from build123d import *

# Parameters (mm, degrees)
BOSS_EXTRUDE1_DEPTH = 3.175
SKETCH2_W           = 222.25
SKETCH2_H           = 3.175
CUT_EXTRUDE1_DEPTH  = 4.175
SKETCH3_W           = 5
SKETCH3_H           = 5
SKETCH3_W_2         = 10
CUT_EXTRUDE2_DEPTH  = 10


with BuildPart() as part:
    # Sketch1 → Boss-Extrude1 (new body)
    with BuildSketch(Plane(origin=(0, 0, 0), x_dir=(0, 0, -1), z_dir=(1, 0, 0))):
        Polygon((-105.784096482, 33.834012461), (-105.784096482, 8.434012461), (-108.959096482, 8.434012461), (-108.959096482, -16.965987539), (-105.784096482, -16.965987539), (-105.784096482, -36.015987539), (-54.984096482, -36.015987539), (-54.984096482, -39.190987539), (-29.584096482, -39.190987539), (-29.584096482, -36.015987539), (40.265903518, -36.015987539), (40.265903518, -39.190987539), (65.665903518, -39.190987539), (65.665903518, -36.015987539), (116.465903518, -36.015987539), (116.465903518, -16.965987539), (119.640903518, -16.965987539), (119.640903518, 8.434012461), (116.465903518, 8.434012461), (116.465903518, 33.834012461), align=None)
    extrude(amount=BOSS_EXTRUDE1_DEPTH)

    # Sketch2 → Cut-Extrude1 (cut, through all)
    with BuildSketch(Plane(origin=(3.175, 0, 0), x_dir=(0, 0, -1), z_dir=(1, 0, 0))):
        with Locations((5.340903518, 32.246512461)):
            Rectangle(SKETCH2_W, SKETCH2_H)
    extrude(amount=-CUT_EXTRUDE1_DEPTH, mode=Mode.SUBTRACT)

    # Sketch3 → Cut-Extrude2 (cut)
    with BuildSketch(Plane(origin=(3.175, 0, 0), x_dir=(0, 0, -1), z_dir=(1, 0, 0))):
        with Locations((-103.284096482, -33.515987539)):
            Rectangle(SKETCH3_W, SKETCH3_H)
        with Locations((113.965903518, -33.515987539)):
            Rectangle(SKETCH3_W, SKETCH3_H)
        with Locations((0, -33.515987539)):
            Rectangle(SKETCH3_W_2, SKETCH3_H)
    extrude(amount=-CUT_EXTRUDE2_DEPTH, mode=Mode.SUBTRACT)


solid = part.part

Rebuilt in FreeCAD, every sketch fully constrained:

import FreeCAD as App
import Part
import Sketcher

V = App.Vector
Q = App.Units.Quantity


def add_polygon(sketch, points):
    """Adds a closed chain of lines whose ends are joined by coincident constraints."""
    first, n = sketch.GeometryCount, len(points)
    for a, b in zip(points, points[1:] + points[:1]):
        sketch.addGeometry(Part.LineSegment(App.Vector(*a, 0), App.Vector(*b, 0)), False)
    for i in range(n):
        sketch.addConstraint(Sketcher.Constraint("Coincident", first + i, 2, first + (i + 1) % n, 1))

doc = App.newDocument("Part")
body = doc.addObject("PartDesign::Body", "Body")

# Sketch on YZ plane
sketch1 = body.newObject("Sketcher::SketchObject", "Sketch")
sketch1.AttachmentSupport = (doc.getObject("YZ_Plane"), [""])
sketch1.MapMode = "FlatFace"
add_polygon(sketch1, [(33.8, 105.8), (8.4, 105.8), (8.4, 109), (-17, 109), (-17, 105.8), (-36, 105.8), (-36, 55), (-39.2, 55), (-39.2, 29.6), (-36, 29.6), (-36, -40.3), (-39.2, -40.3), (-39.2, -65.7), (-36, -65.7), (-36, -116.5), (-17, -116.5), (-17, -119.6), (8.4, -119.6), (8.4, -116.5), (33.8, -116.5)])  # lines 0-19
sketch1.addConstraint(Sketcher.Constraint("Horizontal", 0))
sketch1.addConstraint(Sketcher.Constraint("Vertical", 1))
sketch1.addConstraint(Sketcher.Constraint("Horizontal", 2))
sketch1.addConstraint(Sketcher.Constraint("Vertical", 3))
sketch1.addConstraint(Sketcher.Constraint("Horizontal", 4))
sketch1.addConstraint(Sketcher.Constraint("Vertical", 5))
sketch1.addConstraint(Sketcher.Constraint("Horizontal", 6))
sketch1.addConstraint(Sketcher.Constraint("Vertical", 7))
sketch1.addConstraint(Sketcher.Constraint("Horizontal", 8))
sketch1.addConstraint(Sketcher.Constraint("Vertical", 9))
sketch1.addConstraint(Sketcher.Constraint("Horizontal", 10))
sketch1.addConstraint(Sketcher.Constraint("Vertical", 11))
sketch1.addConstraint(Sketcher.Constraint("Horizontal", 12))
sketch1.addConstraint(Sketcher.Constraint("Vertical", 13))
sketch1.addConstraint(Sketcher.Constraint("Horizontal", 14))
sketch1.addConstraint(Sketcher.Constraint("Vertical", 15))
sketch1.addConstraint(Sketcher.Constraint("Horizontal", 16))
sketch1.addConstraint(Sketcher.Constraint("Vertical", 17))
sketch1.addConstraint(Sketcher.Constraint("Horizontal", 18))
sketch1.addConstraint(Sketcher.Constraint("Vertical", 19))
sketch1.addConstraint(Sketcher.Constraint("Horizontal", 0, 2, 3, 2))
sketch1.addConstraint(Sketcher.Constraint("Horizontal", 14, 2, 17, 2))
sketch1.addConstraint(Sketcher.Constraint("Vertical", 5, 2, 8, 2))
sketch1.addConstraint(Sketcher.Constraint("Vertical", 7, 2, 10, 2))
sketch1.addConstraint(Sketcher.Constraint("Vertical", 9, 2, 12, 2))
sketch1.addConstraint(Sketcher.Constraint("Vertical", 3, 2, 14, 2))
sketch1.addConstraint(Sketcher.Constraint("Vertical", 1, 2, 16, 2))
sketch1.addConstraint(Sketcher.Constraint("Equal", 0, 2))
sketch1.addConstraint(Sketcher.Constraint("Equal", 12, 1))
sketch1.addConstraint(Sketcher.Constraint("Equal", 18, 7))
sketch1.addConstraint(Sketcher.Constraint("Equal", 7, 11))
sketch1.addConstraint(Sketcher.Constraint("Equal", 5, 13))
sketch1.addConstraint(Sketcher.Constraint("Equal", 3, 15))
sketch1.addConstraint(Sketcher.Constraint("DistanceX", 0, 2, 0, 1, Q("1 in")))
sketch1.addConstraint(Sketcher.Constraint("DistanceY", 5, 2, 5, 1, Q("2 in")))
sketch1.addConstraint(Sketcher.Constraint("DistanceX", 4, 2, 4, 1, Q("0.75 in")))
sketch1.addConstraint(Sketcher.Constraint("DistanceY", 9, 2, 9, 1, Q("2.75 in")))
sketch1.addConstraint(Sketcher.Constraint("DistanceX", 6, 2, 6, 1, Q("0.125 in")))
sketch1.addConstraint(Sketcher.Constraint("DistanceX", -1, 1, 0, 2, Q("8.434012 mm")))
sketch1.addConstraint(Sketcher.Constraint("DistanceY", -1, 1, 0, 2, Q("105.784096 mm")))
pad1 = body.newObject("PartDesign::Pad", "Pad")
pad1.Profile = sketch1
pad1.Length = Q("0.125 in")

# Sketch on YZ plane
sketch2 = body.newObject("Sketcher::SketchObject", "Sketch001")
sketch2.AttachmentSupport = (doc.getObject("YZ_Plane"), [""])
sketch2.MapMode = "FlatFace"
sketch2.AttachmentOffset = App.Placement(V(0, 0, 0.125 * 25.4), App.Rotation())
add_polygon(sketch2, [(33.8, 105.8), (30.7, 105.8), (30.7, -116.5), (33.8, -116.5)])  # lines 0-3
sketch2.addConstraint(Sketcher.Constraint("Horizontal", 0))
sketch2.addConstraint(Sketcher.Constraint("Vertical", 1))
sketch2.addConstraint(Sketcher.Constraint("Horizontal", 2))
sketch2.addConstraint(Sketcher.Constraint("Vertical", 3))
sketch2.addConstraint(Sketcher.Constraint("DistanceY", 1, 2, 1, 1, Q("8.75 in")))
sketch2.addConstraint(Sketcher.Constraint("DistanceX", 0, 2, 0, 1, Q("0.125 in")))
sketch2.addConstraint(Sketcher.Constraint("DistanceX", -1, 1, 0, 2, Q("30.659012 mm")))
sketch2.addConstraint(Sketcher.Constraint("DistanceY", -1, 1, 0, 2, Q("105.784096 mm")))
pocket1 = body.newObject("PartDesign::Pocket", "Pocket")
pocket1.Profile = sketch2
pocket1.Type = "ThroughAll"

# Sketch on YZ plane
sketch3 = body.newObject("Sketcher::SketchObject", "Sketch002")
sketch3.AttachmentSupport = (doc.getObject("YZ_Plane"), [""])
sketch3.MapMode = "FlatFace"
sketch3.AttachmentOffset = App.Placement(V(0, 0, 0.125 * 25.4), App.Rotation())
add_polygon(sketch3, [(-31, 106), (-36, 106), (-36, 101), (-31, 101)])  # lines 0-3
add_polygon(sketch3, [(-31, -111), (-36, -111), (-36, -116), (-31, -116)])  # lines 4-7
add_polygon(sketch3, [(-31, 5), (-36, 5), (-36, -5), (-31, -5)])  # lines 8-11
sketch3.addConstraint(Sketcher.Constraint("Horizontal", 0))
sketch3.addConstraint(Sketcher.Constraint("Vertical", 1))
sketch3.addConstraint(Sketcher.Constraint("Horizontal", 2))
sketch3.addConstraint(Sketcher.Constraint("Vertical", 3))
sketch3.addConstraint(Sketcher.Constraint("Horizontal", 4))
sketch3.addConstraint(Sketcher.Constraint("Vertical", 5))
sketch3.addConstraint(Sketcher.Constraint("Horizontal", 6))
sketch3.addConstraint(Sketcher.Constraint("Vertical", 7))
sketch3.addConstraint(Sketcher.Constraint("Horizontal", 8))
sketch3.addConstraint(Sketcher.Constraint("Vertical", 9))
sketch3.addConstraint(Sketcher.Constraint("Horizontal", 10))
sketch3.addConstraint(Sketcher.Constraint("Vertical", 11))
sketch3.addConstraint(Sketcher.Constraint("Vertical", 1, 2, 4, 2))
sketch3.addConstraint(Sketcher.Constraint("Vertical", 3, 2, 6, 2))
sketch3.addConstraint(Sketcher.Constraint("Vertical", 5, 2, 8, 2))
sketch3.addConstraint(Sketcher.Constraint("Vertical", 7, 2, 10, 2))
sketch3.addConstraint(Sketcher.Constraint("Equal", 10, 1))
sketch3.addConstraint(Sketcher.Constraint("Equal", 3, 5))
sketch3.addConstraint(Sketcher.Constraint("DistanceY", 5, 2, 0, 2, Q("8.75 in")))
sketch3.addConstraint(Sketcher.Constraint("DistanceX", 0, 2, 0, 1, Q("5 mm")))
sketch3.addConstraint(Sketcher.Constraint("DistanceY", 9, 2, 9, 1, Q("10 mm")))
sketch3.addConstraint(Sketcher.Constraint("DistanceY", -1, 1, 8, 2, Q("5 mm")))
sketch3.addConstraint(Sketcher.Constraint("DistanceX", 0, 2, -1, 1, Q("36.015988 mm")))
sketch3.addConstraint(Sketcher.Constraint("DistanceY", -1, 1, 0, 2, Q("105.784096 mm")))
pocket2 = body.newObject("PartDesign::Pocket", "Pocket001")
pocket2.Profile = sketch3
pocket2.Length = 10

doc.recompute()
